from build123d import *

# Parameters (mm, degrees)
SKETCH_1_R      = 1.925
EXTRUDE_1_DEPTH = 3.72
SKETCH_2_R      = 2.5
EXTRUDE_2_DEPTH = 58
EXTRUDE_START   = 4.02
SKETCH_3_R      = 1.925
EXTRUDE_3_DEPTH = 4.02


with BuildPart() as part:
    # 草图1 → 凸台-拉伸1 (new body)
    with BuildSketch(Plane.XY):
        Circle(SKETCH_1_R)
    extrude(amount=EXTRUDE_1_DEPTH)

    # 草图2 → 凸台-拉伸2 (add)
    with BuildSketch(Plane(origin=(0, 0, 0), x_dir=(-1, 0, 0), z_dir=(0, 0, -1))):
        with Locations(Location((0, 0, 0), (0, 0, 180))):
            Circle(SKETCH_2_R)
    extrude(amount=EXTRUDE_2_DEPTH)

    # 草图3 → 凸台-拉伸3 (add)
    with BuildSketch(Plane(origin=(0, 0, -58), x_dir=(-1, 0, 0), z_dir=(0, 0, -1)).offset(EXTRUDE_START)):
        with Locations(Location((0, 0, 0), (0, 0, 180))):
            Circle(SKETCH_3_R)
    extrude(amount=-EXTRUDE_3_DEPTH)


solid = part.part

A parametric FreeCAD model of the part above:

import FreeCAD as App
import Part
import Sketcher
from FreeCAD import Vector
Q = App.Units.Quantity

doc = App.newDocument("Part")
body = doc.addObject("PartDesign::Body", "Body")

sketch1 = body.newObject("Sketcher::SketchObject", "Sketch")
sketch1.AttachmentSupport = (doc.getObject("XY_Plane"), [""])
sketch1.MapMode = "FlatFace"
sketch1.addGeometry(Part.Circle(Vector(0, 0, 0), Vector(0, 0, 1), 1.9), False)
sketch1.addConstraint(Sketcher.Constraint("Coincident", 0, 3, -1, 1))
sketch1.addConstraint(Sketcher.Constraint("Diameter", 0, Q("3.85 mm")))
pad1 = body.newObject("PartDesign::Pad", "Pad")
pad1.Profile = sketch1
pad1.Length = 3.72

sketch2 = body.newObject("Sketcher::SketchObject", "Sketch001")
sketch2.AttachmentSupport = (doc.getObject("XY_Plane"), [""])
sketch2.MapMode = "FlatFace"
sketch2.addGeometry(Part.Circle(Vector(0, 0, 0), Vector(0, 0, 1), 2.5), False)
sketch2.addConstraint(Sketcher.Constraint("Coincident", 0, 3, -1, 1))
sketch2.addConstraint(Sketcher.Constraint("Diameter", 0, Q("5 mm")))
pad2 = body.newObject("PartDesign::Pad", "Pad001")
pad2.Profile = sketch2
pad2.Length = 58
pad2.Reversed = True

sketch3 = body.newObject("Sketcher::SketchObject", "Sketch002")
sketch3.AttachmentSupport = (doc.getObject("XY_Plane"), [""])
sketch3.MapMode = "FlatFace"
sketch3.AttachmentOffset = App.Placement(Vector(0, 0, -62.02), App.Rotation())
sketch3.addGeometry(Part.Circle(Vector(0, 0, 0), Vector(0, 0, 1), 1.9), False)
sketch3.addConstraint(Sketcher.Constraint("Coincident", 0, 3, -1, 1))
sketch3.addConstraint(Sketcher.Constraint("Diameter", 0, Q("3.85 mm")))
pad3 = body.newObject("PartDesign::Pad", "Pad002")
pad3.Profile = sketch3
pad3.Length = 4.02

doc.recompute()
